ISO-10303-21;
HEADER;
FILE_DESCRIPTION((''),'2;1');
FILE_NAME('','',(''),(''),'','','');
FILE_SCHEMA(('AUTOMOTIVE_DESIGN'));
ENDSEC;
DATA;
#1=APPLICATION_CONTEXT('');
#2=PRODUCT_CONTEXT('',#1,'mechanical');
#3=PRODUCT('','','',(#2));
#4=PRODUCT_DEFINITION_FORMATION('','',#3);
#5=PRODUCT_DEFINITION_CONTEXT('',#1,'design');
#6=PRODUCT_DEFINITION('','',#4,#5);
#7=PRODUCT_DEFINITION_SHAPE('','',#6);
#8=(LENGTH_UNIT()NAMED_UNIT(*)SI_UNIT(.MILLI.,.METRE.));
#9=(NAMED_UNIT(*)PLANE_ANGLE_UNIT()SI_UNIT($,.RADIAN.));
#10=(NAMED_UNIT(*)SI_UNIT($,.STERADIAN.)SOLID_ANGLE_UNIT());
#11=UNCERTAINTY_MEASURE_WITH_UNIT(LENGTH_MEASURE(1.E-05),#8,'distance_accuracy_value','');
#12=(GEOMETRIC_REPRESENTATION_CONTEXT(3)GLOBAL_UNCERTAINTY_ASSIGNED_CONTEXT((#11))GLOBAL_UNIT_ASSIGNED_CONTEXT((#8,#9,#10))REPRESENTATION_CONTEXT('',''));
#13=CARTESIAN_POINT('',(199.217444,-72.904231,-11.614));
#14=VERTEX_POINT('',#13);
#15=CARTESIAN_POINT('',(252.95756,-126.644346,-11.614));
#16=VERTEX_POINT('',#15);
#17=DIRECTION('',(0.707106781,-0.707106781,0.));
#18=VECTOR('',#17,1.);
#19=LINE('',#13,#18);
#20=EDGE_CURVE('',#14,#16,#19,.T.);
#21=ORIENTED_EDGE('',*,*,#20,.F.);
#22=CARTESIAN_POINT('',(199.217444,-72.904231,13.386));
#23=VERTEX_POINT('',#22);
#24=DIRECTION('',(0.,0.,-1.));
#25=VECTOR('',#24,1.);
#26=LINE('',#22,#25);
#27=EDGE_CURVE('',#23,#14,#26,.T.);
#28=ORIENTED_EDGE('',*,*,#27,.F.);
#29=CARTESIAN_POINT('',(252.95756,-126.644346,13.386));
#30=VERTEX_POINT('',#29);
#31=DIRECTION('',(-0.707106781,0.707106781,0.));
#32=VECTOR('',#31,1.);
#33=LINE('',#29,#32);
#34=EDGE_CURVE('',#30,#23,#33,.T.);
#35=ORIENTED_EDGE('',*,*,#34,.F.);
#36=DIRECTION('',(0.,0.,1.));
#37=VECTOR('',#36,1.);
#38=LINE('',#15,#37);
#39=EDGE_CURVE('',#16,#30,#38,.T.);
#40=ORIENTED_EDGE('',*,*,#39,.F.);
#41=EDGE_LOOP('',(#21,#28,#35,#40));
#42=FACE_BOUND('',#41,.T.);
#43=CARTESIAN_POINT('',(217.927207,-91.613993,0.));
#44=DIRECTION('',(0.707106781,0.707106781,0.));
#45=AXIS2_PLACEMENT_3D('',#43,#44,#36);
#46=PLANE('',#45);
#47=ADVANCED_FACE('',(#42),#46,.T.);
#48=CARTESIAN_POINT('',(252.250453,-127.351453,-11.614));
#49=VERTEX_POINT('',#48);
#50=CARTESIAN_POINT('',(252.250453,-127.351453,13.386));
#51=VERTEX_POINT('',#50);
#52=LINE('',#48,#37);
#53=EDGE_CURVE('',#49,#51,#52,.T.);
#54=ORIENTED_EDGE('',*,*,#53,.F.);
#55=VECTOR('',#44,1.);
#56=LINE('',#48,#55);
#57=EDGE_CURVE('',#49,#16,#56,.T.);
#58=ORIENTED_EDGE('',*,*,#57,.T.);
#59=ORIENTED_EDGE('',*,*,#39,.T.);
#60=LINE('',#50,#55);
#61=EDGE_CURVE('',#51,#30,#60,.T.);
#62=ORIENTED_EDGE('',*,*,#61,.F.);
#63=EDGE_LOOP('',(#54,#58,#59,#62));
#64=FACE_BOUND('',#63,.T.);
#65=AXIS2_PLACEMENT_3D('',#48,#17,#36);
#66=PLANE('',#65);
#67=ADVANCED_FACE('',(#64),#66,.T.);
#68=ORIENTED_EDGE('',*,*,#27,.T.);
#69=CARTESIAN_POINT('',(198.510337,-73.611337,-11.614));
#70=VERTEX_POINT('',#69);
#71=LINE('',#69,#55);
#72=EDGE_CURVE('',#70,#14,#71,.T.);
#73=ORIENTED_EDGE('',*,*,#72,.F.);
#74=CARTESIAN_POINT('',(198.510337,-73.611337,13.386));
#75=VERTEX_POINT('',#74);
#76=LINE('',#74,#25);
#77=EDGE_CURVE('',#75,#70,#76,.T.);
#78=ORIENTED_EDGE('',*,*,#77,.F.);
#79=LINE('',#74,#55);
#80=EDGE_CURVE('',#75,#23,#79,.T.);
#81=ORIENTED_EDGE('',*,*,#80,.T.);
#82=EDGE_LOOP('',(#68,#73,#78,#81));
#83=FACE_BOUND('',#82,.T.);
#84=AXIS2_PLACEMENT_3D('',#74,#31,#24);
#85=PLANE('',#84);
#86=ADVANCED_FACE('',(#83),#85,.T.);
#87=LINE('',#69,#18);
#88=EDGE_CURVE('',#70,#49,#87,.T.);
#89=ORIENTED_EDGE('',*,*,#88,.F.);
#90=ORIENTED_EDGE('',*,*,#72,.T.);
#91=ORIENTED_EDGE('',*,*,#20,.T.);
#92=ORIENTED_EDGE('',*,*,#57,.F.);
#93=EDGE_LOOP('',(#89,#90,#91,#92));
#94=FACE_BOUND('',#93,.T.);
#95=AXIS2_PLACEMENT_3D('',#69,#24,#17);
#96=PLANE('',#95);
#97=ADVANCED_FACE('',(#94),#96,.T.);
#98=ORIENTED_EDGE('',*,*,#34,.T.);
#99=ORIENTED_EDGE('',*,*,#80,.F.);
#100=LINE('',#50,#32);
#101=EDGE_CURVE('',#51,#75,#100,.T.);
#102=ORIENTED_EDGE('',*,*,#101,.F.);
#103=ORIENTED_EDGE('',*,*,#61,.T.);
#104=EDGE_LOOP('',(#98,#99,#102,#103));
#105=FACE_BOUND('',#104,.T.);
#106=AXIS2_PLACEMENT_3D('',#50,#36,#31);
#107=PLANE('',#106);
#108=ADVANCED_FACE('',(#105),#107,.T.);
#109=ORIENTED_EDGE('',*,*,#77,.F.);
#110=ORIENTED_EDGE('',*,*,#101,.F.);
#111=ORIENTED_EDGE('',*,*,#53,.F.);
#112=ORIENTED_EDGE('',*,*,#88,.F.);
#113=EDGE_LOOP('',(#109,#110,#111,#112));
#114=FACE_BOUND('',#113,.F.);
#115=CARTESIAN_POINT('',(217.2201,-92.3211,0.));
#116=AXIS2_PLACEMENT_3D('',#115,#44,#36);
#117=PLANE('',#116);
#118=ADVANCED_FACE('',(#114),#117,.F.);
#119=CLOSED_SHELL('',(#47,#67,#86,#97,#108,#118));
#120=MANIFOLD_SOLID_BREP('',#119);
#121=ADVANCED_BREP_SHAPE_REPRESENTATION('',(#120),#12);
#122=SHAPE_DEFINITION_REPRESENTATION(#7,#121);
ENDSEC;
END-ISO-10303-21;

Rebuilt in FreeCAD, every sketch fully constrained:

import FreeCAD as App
import Part
import Sketcher

V = App.Vector


def add_polygon(sketch, points):
    """Adds a closed chain of lines whose ends are joined by coincident constraints."""
    first, n = sketch.GeometryCount, len(points)
    for a, b in zip(points, points[1:] + points[:1]):
        sketch.addGeometry(Part.LineSegment(App.Vector(*a, 0), App.Vector(*b, 0)), False)
    for i in range(n):
        sketch.addConstraint(Sketcher.Constraint("Coincident", first + i, 2, first + (i + 1) % n, 1))

doc = App.newDocument("Part")
body = doc.addObject("PartDesign::Body", "Body")

sketch1 = body.newObject("Sketcher::SketchObject", "Sketch")
sketch1.Placement = App.Placement(V(217.2201, -92.3211, 0), App.Rotation(V(0, 0, 1), V(0.707106781, -0.707106781, 0), V(0.707106781, 0.707106781, 0), "ZXY"))
add_polygon(sketch1, [(13, 50), (-12, 50), (-12, -26), (13, -26)])
sketch1.addConstraint(Sketcher.Constraint("Horizontal", 0))
sketch1.addConstraint(Sketcher.Constraint("Vertical", 1))
sketch1.addConstraint(Sketcher.Constraint("Horizontal", 2))
sketch1.addConstraint(Sketcher.Constraint("Vertical", 3))
sketch1.addConstraint(Sketcher.Constraint("DistanceX", 0, 2, 0, 1, 25.0))
sketch1.addConstraint(Sketcher.Constraint("DistanceY", 1, 2, 1, 1, 76.0))
sketch1.addConstraint(Sketcher.Constraint("DistanceX", 0, 2, -1, 1, 11.614))
sketch1.addConstraint(Sketcher.Constraint("DistanceY", -1, 1, 0, 2, 49.5404))
pad1 = body.newObject("PartDesign::Pad", "Pad")
pad1.Profile = sketch1
pad1.Length = 1

doc.recompute()
